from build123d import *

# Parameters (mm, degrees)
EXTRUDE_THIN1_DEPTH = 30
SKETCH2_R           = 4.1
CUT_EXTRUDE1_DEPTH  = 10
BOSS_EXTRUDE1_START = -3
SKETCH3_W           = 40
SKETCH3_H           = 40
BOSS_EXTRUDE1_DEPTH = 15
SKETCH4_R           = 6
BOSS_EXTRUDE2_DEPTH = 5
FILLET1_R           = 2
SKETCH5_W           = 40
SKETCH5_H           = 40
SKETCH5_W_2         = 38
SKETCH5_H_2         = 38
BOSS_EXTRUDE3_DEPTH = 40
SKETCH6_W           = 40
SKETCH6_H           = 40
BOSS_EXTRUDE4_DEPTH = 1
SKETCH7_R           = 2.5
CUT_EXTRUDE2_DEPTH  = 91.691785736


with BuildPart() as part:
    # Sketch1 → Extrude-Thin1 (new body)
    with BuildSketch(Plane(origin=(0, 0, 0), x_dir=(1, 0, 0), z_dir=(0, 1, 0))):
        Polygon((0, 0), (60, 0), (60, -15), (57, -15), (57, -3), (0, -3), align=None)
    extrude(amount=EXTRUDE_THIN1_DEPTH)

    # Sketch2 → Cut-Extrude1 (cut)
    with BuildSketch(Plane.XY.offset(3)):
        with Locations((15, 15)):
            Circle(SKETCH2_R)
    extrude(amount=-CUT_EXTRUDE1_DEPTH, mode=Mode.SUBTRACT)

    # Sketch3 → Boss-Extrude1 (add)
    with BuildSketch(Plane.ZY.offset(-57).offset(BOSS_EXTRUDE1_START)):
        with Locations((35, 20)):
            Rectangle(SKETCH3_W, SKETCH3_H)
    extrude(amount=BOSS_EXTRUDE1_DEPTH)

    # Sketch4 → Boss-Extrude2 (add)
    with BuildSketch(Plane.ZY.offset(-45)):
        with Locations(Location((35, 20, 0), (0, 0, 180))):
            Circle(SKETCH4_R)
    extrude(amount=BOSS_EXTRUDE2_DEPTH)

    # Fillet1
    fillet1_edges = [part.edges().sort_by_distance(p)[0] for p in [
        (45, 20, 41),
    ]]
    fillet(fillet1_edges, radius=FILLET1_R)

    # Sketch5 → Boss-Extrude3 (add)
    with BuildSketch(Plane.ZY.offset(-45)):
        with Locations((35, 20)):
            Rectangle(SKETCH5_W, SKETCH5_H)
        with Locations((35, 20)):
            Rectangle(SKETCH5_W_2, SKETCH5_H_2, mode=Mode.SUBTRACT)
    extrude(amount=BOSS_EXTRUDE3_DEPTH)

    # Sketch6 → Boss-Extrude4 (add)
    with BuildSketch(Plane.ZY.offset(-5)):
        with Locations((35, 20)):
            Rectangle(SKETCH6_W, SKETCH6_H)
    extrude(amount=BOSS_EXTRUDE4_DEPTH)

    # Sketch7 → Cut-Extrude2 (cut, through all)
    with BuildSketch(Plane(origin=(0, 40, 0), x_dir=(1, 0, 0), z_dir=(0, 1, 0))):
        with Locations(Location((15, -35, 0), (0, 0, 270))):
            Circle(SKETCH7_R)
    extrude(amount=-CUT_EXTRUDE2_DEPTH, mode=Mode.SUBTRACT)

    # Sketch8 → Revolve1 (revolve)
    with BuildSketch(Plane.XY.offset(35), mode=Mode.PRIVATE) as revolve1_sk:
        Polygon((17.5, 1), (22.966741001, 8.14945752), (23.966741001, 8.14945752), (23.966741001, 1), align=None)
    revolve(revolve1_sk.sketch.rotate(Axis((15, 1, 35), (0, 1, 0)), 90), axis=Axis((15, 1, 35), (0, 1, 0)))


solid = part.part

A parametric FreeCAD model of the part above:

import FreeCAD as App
import Part
import Sketcher

V = App.Vector
Q = App.Units.Quantity


def edges_at(feature, points):
    """Names of the edges that pass closest to the given points."""
    edges = feature.Shape.Edges
    near = lambda p: min(range(len(edges)), key=lambda i: edges[i].distToShape(Part.Vertex(*p))[0])
    return sorted({f"Edge{near(p) + 1}" for p in points})


def add_polygon(sketch, points):
    """Adds a closed chain of lines whose ends are joined by coincident constraints."""
    first, n = sketch.GeometryCount, len(points)
    for a, b in zip(points, points[1:] + points[:1]):
        sketch.addGeometry(Part.LineSegment(App.Vector(*a, 0), App.Vector(*b, 0)), False)
    for i in range(n):
        sketch.addConstraint(Sketcher.Constraint("Coincident", first + i, 2, first + (i + 1) % n, 1))

doc = App.newDocument("Part")
params = doc.addObject("Spreadsheet::Sheet", "Params")
for row, (alias, value) in enumerate([
    ("sketch1_width", "60 mm"),
    ("sketch1_width2", "57 mm"),
    ("sketch1_height", "12 mm"),
    ("pad1_length", "30 mm"),
    ("sketch2_diameter", "8.2 mm"),
    ("pocket1_length", "10 mm"),
    ("sketch3_width", "40 mm"),
    ("pad2_length", "15 mm"),
    ("sketch4_diameter", "12 mm"),
    ("pad3_length", "5 mm"),
    ("fillet_radius", "2 mm"),
    ("sketch5_width", "40 mm"),
    ("sketch5_width2", "38 mm"),
    ("pad4_length", "40 mm"),
    ("sketch6_width", "40 mm"),
    ("pad5_length", "1 mm"),
    ("sketch7_diameter", "5 mm"),
    ("sketch8_width", "1 mm"),
    ("sketch8_length", "9 mm"),
    ("revolution_angle", "360 deg"),
], start=1):
    params.set(f"A{row}", alias)
    params.set(f"B{row}", "=" + value)
    params.setAlias(f"B{row}", alias)

body = doc.addObject("PartDesign::Body", "Body")

# Sketch on XZ plane
sketch1 = body.newObject("Sketcher::SketchObject", "Sketch")
sketch1.AttachmentSupport = (doc.getObject("XZ_Plane"), [""])
sketch1.MapMode = "FlatFace"
add_polygon(sketch1, [(60, 0), (0, 0), (0, 3), (57, 3), (57, 15), (60, 15)])  # lines 0-5
sketch1.addConstraint(Sketcher.Constraint("Horizontal", 0))
sketch1.addConstraint(Sketcher.Constraint("Vertical", 1))
sketch1.addConstraint(Sketcher.Constraint("Horizontal", 2))
sketch1.addConstraint(Sketcher.Constraint("Vertical", 3))
sketch1.addConstraint(Sketcher.Constraint("Horizontal", 4))
sketch1.addConstraint(Sketcher.Constraint("Vertical", 5))
sketch1.addConstraint(Sketcher.Constraint("Coincident", 0, 2, -1, 1))
sketch1.addConstraint(Sketcher.Constraint("Equal", 4, 1))
sketch1.addConstraint(Sketcher.Constraint("DistanceX", 0, 2, 0, 1, Q("60 mm")))
sketch1.addConstraint(Sketcher.Constraint("DistanceX", 2, 1, 2, 2, Q("57 mm")))
sketch1.addConstraint(Sketcher.Constraint("DistanceY", 3, 1, 3, 2, Q("12 mm")))
sketch1.setExpression("Constraints[14]", "Params.sketch1_width")
sketch1.setExpression("Constraints[15]", "Params.sketch1_width2")
sketch1.setExpression("Constraints[16]", "Params.sketch1_height")
pad1 = body.newObject("PartDesign::Pad", "Pad")
pad1.Profile = sketch1
pad1.setExpression("Length", "Params.pad1_length")
pad1.Reversed = True

# Sketch on XY plane
sketch2 = body.newObject("Sketcher::SketchObject", "Sketch001")
sketch2.AttachmentSupport = (doc.getObject("XY_Plane"), [""])
sketch2.MapMode = "FlatFace"
sketch2.AttachmentOffset = App.Placement(V(0, 0, 3), App.Rotation())
sketch2.addGeometry(Part.Circle(V(15, 15, 0), V(0, 0, 1), 4.1), False)
sketch2.addConstraint(Sketcher.Constraint("Diameter", 0, Q("8.2 mm")))
sketch2.addConstraint(Sketcher.Constraint("DistanceX", -1, 1, 0, 3, Q("15 mm")))
sketch2.addConstraint(Sketcher.Constraint("DistanceY", -1, 1, 0, 3, Q("15 mm")))
sketch2.setExpression("Constraints[0]", "Params.sketch2_diameter")
pocket1 = body.newObject("PartDesign::Pocket", "Pocket")
pocket1.Profile = sketch2
pocket1.setExpression("Length", "Params.pocket1_length")

# Sketch on YZ plane
sketch3 = body.newObject("Sketcher::SketchObject", "Sketch002")
sketch3.AttachmentSupport = (doc.getObject("YZ_Plane"), [""])
sketch3.MapMode = "FlatFace"
sketch3.AttachmentOffset = App.Placement(V(0, 0, 60), App.Rotation())
add_polygon(sketch3, [(40, 15), (0, 15), (0, 55), (40, 55)])  # lines 0-3
sketch3.addConstraint(Sketcher.Constraint("Horizontal", 0))
sketch3.addConstraint(Sketcher.Constraint("Vertical", 1))
sketch3.addConstraint(Sketcher.Constraint("Horizontal", 2))
sketch3.addConstraint(Sketcher.Constraint("Vertical", 3))
sketch3.addConstraint(Sketcher.Constraint("PointOnObject", 0, 2, -2))
sketch3.addConstraint(Sketcher.Constraint("Equal", 2, 1))
sketch3.addConstraint(Sketcher.Constraint("DistanceX", 0, 2, 0, 1, Q("40 mm")))
sketch3.addConstraint(Sketcher.Constraint("DistanceY", -1, 1, 0, 2, Q("15 mm")))
sketch3.setExpression("Constraints[10]", "Params.sketch3_width")
pad2 = body.newObject("PartDesign::Pad", "Pad001")
pad2.Profile = sketch3
pad2.setExpression("Length", "Params.pad2_length")
pad2.Reversed = True

# Sketch on YZ plane
sketch4 = body.newObject("Sketcher::SketchObject", "Sketch003")
sketch4.AttachmentSupport = (doc.getObject("YZ_Plane"), [""])
sketch4.MapMode = "FlatFace"
sketch4.AttachmentOffset = App.Placement(V(0, 0, 45), App.Rotation())
sketch4.addGeometry(Part.Circle(V(20, 35, 0), V(0, 0, 1), 6), False)
sketch4.addConstraint(Sketcher.Constraint("Diameter", 0, Q("12 mm")))
sketch4.addConstraint(Sketcher.Constraint("DistanceX", -1, 1, 0, 3, Q("20 mm")))
sketch4.addConstraint(Sketcher.Constraint("DistanceY", -1, 1, 0, 3, Q("35 mm")))
sketch4.setExpression("Constraints[0]", "Params.sketch4_diameter")
pad3 = body.newObject("PartDesign::Pad", "Pad002")
pad3.Profile = sketch4
pad3.setExpression("Length", "Params.pad3_length")
pad3.Reversed = True
doc.recompute()

fillet = body.newObject("PartDesign::Fillet", "Fillet")
fillet.Base = (pad3, edges_at(pad3, [(45, 20, 41)]))
fillet.setExpression("Radius", "Params.fillet_radius")

# Sketch on YZ plane
sketch5 = body.newObject("Sketcher::SketchObject", "Sketch004")
sketch5.AttachmentSupport = (doc.getObject("YZ_Plane"), [""])
sketch5.MapMode = "FlatFace"
sketch5.AttachmentOffset = App.Placement(V(0, 0, 45), App.Rotation())
add_polygon(sketch5, [(40, 15), (0, 15), (0, 55), (40, 55)])  # lines 0-3
add_polygon(sketch5, [(1, 54), (1, 16), (39, 16), (39, 54)])  # lines 4-7
sketch5.addConstraint(Sketcher.Constraint("Horizontal", 0))
sketch5.addConstraint(Sketcher.Constraint("Vertical", 1))
sketch5.addConstraint(Sketcher.Constraint("Horizontal", 2))
sketch5.addConstraint(Sketcher.Constraint("Vertical", 3))
sketch5.addConstraint(Sketcher.Constraint("Vertical", 4))
sketch5.addConstraint(Sketcher.Constraint("Horizontal", 5))
sketch5.addConstraint(Sketcher.Constraint("Vertical", 6))
sketch5.addConstraint(Sketcher.Constraint("Horizontal", 7))
sketch5.addConstraint(Sketcher.Constraint("PointOnObject", 0, 2, -2))
sketch5.addConstraint(Sketcher.Constraint("Equal", 2, 1))
sketch5.addConstraint(Sketcher.Constraint("Equal", 7, 4))
sketch5.addConstraint(Sketcher.Constraint("DistanceX", 0, 2, 0, 1, Q("40 mm")))
sketch5.addConstraint(Sketcher.Constraint("DistanceX", 5, 1, 5, 2, Q("38 mm")))
sketch5.addConstraint(Sketcher.Constraint("DistanceY", -1, 1, 0, 2, Q("15 mm")))
sketch5.addConstraint(Sketcher.Constraint("DistanceX", -1, 1, 4, 2, Q("1 mm")))
sketch5.addConstraint(Sketcher.Constraint("DistanceY", -1, 1, 4, 2, Q("16 mm")))
sketch5.setExpression("Constraints[19]", "Params.sketch5_width")
sketch5.setExpression("Constraints[20]", "Params.sketch5_width2")
pad4 = body.newObject("PartDesign::Pad", "Pad003")
pad4.Profile = sketch5
pad4.setExpression("Length", "Params.pad4_length")
pad4.Reversed = True

# Sketch on YZ plane
sketch6 = body.newObject("Sketcher::SketchObject", "Sketch005")
sketch6.AttachmentSupport = (doc.getObject("YZ_Plane"), [""])
sketch6.MapMode = "FlatFace"
sketch6.AttachmentOffset = App.Placement(V(0, 0, 5), App.Rotation())
add_polygon(sketch6, [(40, 15), (0, 15), (0, 55), (40, 55)])  # lines 0-3
sketch6.addConstraint(Sketcher.Constraint("Horizontal", 0))
sketch6.addConstraint(Sketcher.Constraint("Vertical", 1))
sketch6.addConstraint(Sketcher.Constraint("Horizontal", 2))
sketch6.addConstraint(Sketcher.Constraint("Vertical", 3))
sketch6.addConstraint(Sketcher.Constraint("PointOnObject", 0, 2, -2))
sketch6.addConstraint(Sketcher.Constraint("Equal", 2, 1))
sketch6.addConstraint(Sketcher.Constraint("DistanceX", 0, 2, 0, 1, Q("40 mm")))
sketch6.addConstraint(Sketcher.Constraint("DistanceY", -1, 1, 0, 2, Q("15 mm")))
sketch6.setExpression("Constraints[10]", "Params.sketch6_width")
pad5 = body.newObject("PartDesign::Pad", "Pad004")
pad5.Profile = sketch6
pad5.setExpression("Length", "Params.pad5_length")
pad5.Reversed = True

# Sketch on XZ plane
sketch7 = body.newObject("Sketcher::SketchObject", "Sketch006")
sketch7.AttachmentSupport = (doc.getObject("XZ_Plane"), [""])
sketch7.MapMode = "FlatFace"
sketch7.AttachmentOffset = App.Placement(V(0, 0, -40), App.Rotation())
sketch7.addGeometry(Part.Circle(V(15, 35, 0), V(0, 0, 1), 2.5), False)
sketch7.addConstraint(Sketcher.Constraint("Diameter", 0, Q("5 mm")))
sketch7.addConstraint(Sketcher.Constraint("DistanceX", -1, 1, 0, 3, Q("15 mm")))
sketch7.addConstraint(Sketcher.Constraint("DistanceY", -1, 1, 0, 3, Q("35 mm")))
sketch7.setExpression("Constraints[0]", "Params.sketch7_diameter")
pocket2 = body.newObject("PartDesign::Pocket", "Pocket001")
pocket2.Profile = sketch7
pocket2.Type = "ThroughAll"
pocket2.Reversed = True

# Sketch on XY plane
sketch8 = body.newObject("Sketcher::SketchObject", "Sketch007")
sketch8.AttachmentSupport = (doc.getObject("XY_Plane"), [""])
sketch8.MapMode = "FlatFace"
sketch8.AttachmentOffset = App.Placement(V(0, 0, 35), App.Rotation())
add_polygon(sketch8, [(22.966741, 8.149458), (17.5, 1), (23.966741, 1), (23.966741, 8.149458)])  # lines 0-3
sketch8.addGeometry(Part.LineSegment(V(15, 1, 0), V(15, 8.149458, 0)), True)  # axis
sketch8.addConstraint(Sketcher.Constraint("Horizontal", 1))
sketch8.addConstraint(Sketcher.Constraint("Vertical", 2))
sketch8.addConstraint(Sketcher.Constraint("Horizontal", 3))
sketch8.addConstraint(Sketcher.Constraint("Vertical", 4))
sketch8.addConstraint(Sketcher.Constraint("Horizontal", 1, 2, 4, 1))
sketch8.addConstraint(Sketcher.Constraint("Horizontal", 3, 2, 4, 2))
sketch8.addConstraint(Sketcher.Constraint("DistanceX", 3, 2, 3, 1, Q("1 mm")))
sketch8.addConstraint(Sketcher.Constraint("Distance", 0, Q("9 mm")))
sketch8.addConstraint(Sketcher.Constraint("DistanceY", -1, 1, 0, 2, Q("1 mm")))
sketch8.addConstraint(Sketcher.Constraint("DistanceX", -1, 1, 4, 1, Q("15 mm")))
sketch8.addConstraint(Sketcher.Constraint("DistanceX", -1, 1, 0, 2, Q("17.5 mm")))
sketch8.addConstraint(Sketcher.Constraint("DistanceX", 1, 1, 1, 2, Q("6.466741 mm")))
sketch8.setExpression("Constraints[10]", "Params.sketch8_width")
sketch8.setExpression("Constraints[11]", "Params.sketch8_length")
revolution = body.newObject("PartDesign::Revolution", "Revolution")
revolution.Profile = sketch8
revolution.ReferenceAxis = (sketch8, ["Axis0"])
revolution.setExpression("Angle", "Params.revolution_angle")

doc.recompute()
